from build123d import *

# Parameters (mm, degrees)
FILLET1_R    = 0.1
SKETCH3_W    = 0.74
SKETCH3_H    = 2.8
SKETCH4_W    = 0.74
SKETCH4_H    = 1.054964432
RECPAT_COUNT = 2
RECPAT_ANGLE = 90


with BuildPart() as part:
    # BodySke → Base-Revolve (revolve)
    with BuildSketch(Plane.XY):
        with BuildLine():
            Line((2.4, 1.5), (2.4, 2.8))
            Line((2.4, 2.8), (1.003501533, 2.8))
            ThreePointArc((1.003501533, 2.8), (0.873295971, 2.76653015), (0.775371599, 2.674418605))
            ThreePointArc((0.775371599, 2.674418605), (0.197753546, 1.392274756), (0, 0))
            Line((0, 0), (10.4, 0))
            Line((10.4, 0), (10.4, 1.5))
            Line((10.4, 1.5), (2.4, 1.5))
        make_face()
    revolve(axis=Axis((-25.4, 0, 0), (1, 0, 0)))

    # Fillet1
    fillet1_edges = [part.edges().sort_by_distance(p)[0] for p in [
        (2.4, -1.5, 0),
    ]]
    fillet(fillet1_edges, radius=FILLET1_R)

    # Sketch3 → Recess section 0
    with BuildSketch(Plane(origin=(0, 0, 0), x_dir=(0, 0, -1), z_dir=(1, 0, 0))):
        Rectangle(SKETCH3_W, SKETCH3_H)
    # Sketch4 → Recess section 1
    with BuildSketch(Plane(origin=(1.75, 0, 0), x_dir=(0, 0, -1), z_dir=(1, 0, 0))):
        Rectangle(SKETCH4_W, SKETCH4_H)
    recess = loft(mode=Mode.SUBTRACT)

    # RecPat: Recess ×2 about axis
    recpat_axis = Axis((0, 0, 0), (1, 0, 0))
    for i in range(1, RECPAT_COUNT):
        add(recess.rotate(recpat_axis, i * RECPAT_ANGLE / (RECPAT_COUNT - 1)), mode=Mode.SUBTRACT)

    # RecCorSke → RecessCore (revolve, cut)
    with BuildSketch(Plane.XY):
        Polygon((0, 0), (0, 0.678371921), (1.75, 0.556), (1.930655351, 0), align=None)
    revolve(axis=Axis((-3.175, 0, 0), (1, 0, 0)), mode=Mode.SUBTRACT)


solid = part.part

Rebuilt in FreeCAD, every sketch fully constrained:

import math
import FreeCAD as App
import Part
import Sketcher
from FreeCAD import Vector
Q = App.Units.Quantity


def edges_at(feature, points):
    """Names of the edges that pass closest to the given points."""
    edges = feature.Shape.Edges
    near = lambda p: min(range(len(edges)), key=lambda i: edges[i].distToShape(Part.Vertex(*p))[0])
    return sorted({f"Edge{near(p) + 1}" for p in points})

doc = App.newDocument("Part")
body = doc.addObject("PartDesign::Body", "Body")

# Sketch on XY plane
sketch1 = body.newObject("Sketcher::SketchObject", "Sketch")
sketch1.AttachmentSupport = (doc.getObject("XY_Plane"), [""])
sketch1.MapMode = "FlatFace"
sketch1.addGeometry(Part.LineSegment(Vector(2.4, 1.5, 0), Vector(2.4, 2.8, 0)), False)
sketch1.addGeometry(Part.LineSegment(Vector(2.4, 2.8, 0), Vector(1, 2.8, 0)), False)
sketch1.addGeometry(Part.ArcOfCircle(Part.Circle(Vector(1, 2.53, 0), Vector(0, 0, 1), 0.27), math.radians(90), math.radians(148)), False)
sketch1.addGeometry(Part.ArcOfCircle(Part.Circle(Vector(5, 0, 0), Vector(0, 0, 1), 5), math.radians(148), math.radians(180)), False)
sketch1.addGeometry(Part.LineSegment(Vector(0, 0, 0), Vector(10.4, 0, 0)), False)
sketch1.addGeometry(Part.LineSegment(Vector(10.4, 0, 0), Vector(10.4, 1.5, 0)), False)
sketch1.addGeometry(Part.LineSegment(Vector(10.4, 1.5, 0), Vector(2.4, 1.5, 0)), False)
sketch1.addConstraint(Sketcher.Constraint("Coincident", 0, 2, 1, 1))
sketch1.addConstraint(Sketcher.Constraint("Tangent", 1, 2, 2, 1))
sketch1.addConstraint(Sketcher.Constraint("Tangent", 2, 2, 3, 1))
sketch1.addConstraint(Sketcher.Constraint("Coincident", 3, 2, 4, 1))
sketch1.addConstraint(Sketcher.Constraint("Coincident", 4, 2, 5, 1))
sketch1.addConstraint(Sketcher.Constraint("Coincident", 5, 2, 6, 1))
sketch1.addConstraint(Sketcher.Constraint("Coincident", 6, 2, 0, 1))
sketch1.addConstraint(Sketcher.Constraint("Vertical", 0))
sketch1.addConstraint(Sketcher.Constraint("Horizontal", 1))
sketch1.addConstraint(Sketcher.Constraint("Horizontal", 4))
sketch1.addConstraint(Sketcher.Constraint("Vertical", 5))
sketch1.addConstraint(Sketcher.Constraint("Horizontal", 6))
sketch1.addConstraint(Sketcher.Constraint("Coincident", 3, 2, -1, 1))
sketch1.addConstraint(Sketcher.Constraint("PointOnObject", 3, 3, -1))
sketch1.addConstraint(Sketcher.Constraint("Radius", 3, 5.0))
sketch1.addConstraint(Sketcher.Constraint("DistanceX", 6, 2, 6, 1, 8.0))
sketch1.addConstraint(Sketcher.Constraint("Radius", 2, 0.27))
sketch1.addConstraint(Sketcher.Constraint("DistanceX", 4, 1, 4, 2, 10.4))
sketch1.addConstraint(Sketcher.Constraint("DistanceY", 0, 1, 0, 2, 1.3))
sketch1.addConstraint(Sketcher.Constraint("DistanceY", 5, 1, 5, 2, 1.5))
revolution = body.newObject("PartDesign::Revolution", "Revolution")
revolution.Profile = sketch1
revolution.ReferenceAxis = (sketch1, ["H_Axis"])
revolution.Angle = 360
doc.recompute()

fillet = body.newObject("PartDesign::Fillet", "Fillet")
fillet.Base = (revolution, edges_at(revolution, [(2.4, -1.5, 0)]))
fillet.Radius = 0.1

# Sketch on YZ plane
sketch2 = body.newObject("Sketcher::SketchObject", "Sketch001")
sketch2.AttachmentSupport = (doc.getObject("YZ_Plane"), [""])
sketch2.MapMode = "FlatFace"
sketch2.addGeometry(Part.LineSegment(Vector(1.4, 0.4, 0), Vector(-1.4, 0.4, 0)), False)
sketch2.addGeometry(Part.LineSegment(Vector(-1.4, 0.4, 0), Vector(-1.4, -0.4, 0)), False)
sketch2.addGeometry(Part.LineSegment(Vector(-1.4, -0.4, 0), Vector(1.4, -0.4, 0)), False)
sketch2.addGeometry(Part.LineSegment(Vector(1.4, -0.4, 0), Vector(1.4, 0.4, 0)), False)
sketch2.addConstraint(Sketcher.Constraint("Coincident", 0, 2, 1, 1))
sketch2.addConstraint(Sketcher.Constraint("Coincident", 1, 2, 2, 1))
sketch2.addConstraint(Sketcher.Constraint("Coincident", 2, 2, 3, 1))
sketch2.addConstraint(Sketcher.Constraint("Coincident", 3, 2, 0, 1))
sketch2.addConstraint(Sketcher.Constraint("Horizontal", 0))
sketch2.addConstraint(Sketcher.Constraint("Vertical", 1))
sketch2.addConstraint(Sketcher.Constraint("Horizontal", 2))
sketch2.addConstraint(Sketcher.Constraint("Vertical", 3))
sketch2.addConstraint(Sketcher.Constraint("Symmetric", 0, 2, 2, 2, -1, 1))
sketch2.addConstraint(Sketcher.Constraint("DistanceX", 0, 2, 0, 1, 2.8))
sketch2.addConstraint(Sketcher.Constraint("DistanceY", 1, 2, 1, 1, 0.74))

# Sketch on YZ plane
sketch3 = body.newObject("Sketcher::SketchObject", "Sketch002")
sketch3.AttachmentSupport = (doc.getObject("YZ_Plane"), [""])
sketch3.MapMode = "FlatFace"
sketch3.AttachmentOffset = App.Placement(Vector(0, 0, 1.75), App.Rotation())
sketch3.addGeometry(Part.LineSegment(Vector(0.5, 0.4, 0), Vector(-0.5, 0.4, 0)), False)
sketch3.addGeometry(Part.LineSegment(Vector(-0.5, 0.4, 0), Vector(-0.5, -0.4, 0)), False)
sketch3.addGeometry(Part.LineSegment(Vector(-0.5, -0.4, 0), Vector(0.5, -0.4, 0)), False)
sketch3.addGeometry(Part.LineSegment(Vector(0.5, -0.4, 0), Vector(0.5, 0.4, 0)), False)
sketch3.addConstraint(Sketcher.Constraint("Coincident", 0, 2, 1, 1))
sketch3.addConstraint(Sketcher.Constraint("Coincident", 1, 2, 2, 1))
sketch3.addConstraint(Sketcher.Constraint("Coincident", 2, 2, 3, 1))
sketch3.addConstraint(Sketcher.Constraint("Coincident", 3, 2, 0, 1))
sketch3.addConstraint(Sketcher.Constraint("Horizontal", 0))
sketch3.addConstraint(Sketcher.Constraint("Vertical", 1))
sketch3.addConstraint(Sketcher.Constraint("Horizontal", 2))
sketch3.addConstraint(Sketcher.Constraint("Vertical", 3))
sketch3.addConstraint(Sketcher.Constraint("Symmetric", 0, 2, 2, 2, -1, 1))
sketch3.addConstraint(Sketcher.Constraint("DistanceY", 1, 2, 1, 1, 0.74))
sketch3.addConstraint(Sketcher.Constraint("DistanceX", 0, 2, 0, 1, 1.054964))

subtractiveloft = body.newObject("PartDesign::SubtractiveLoft", "SubtractiveLoft")
subtractiveloft.Profile = sketch2
subtractiveloft.Sections = [sketch3]
doc.recompute()

polarpattern = body.newObject("PartDesign::PolarPattern", "PolarPattern")
polarpattern.Originals = [subtractiveloft]
polarpattern.Axis = (doc.getObject("X_Axis"), [""])
polarpattern.Angle = 90
polarpattern.Occurrences = 2
body.Tip = polarpattern

# Sketch on XY plane
sketch4 = body.newObject("Sketcher::SketchObject", "Sketch003")
sketch4.AttachmentSupport = (doc.getObject("XY_Plane"), [""])
sketch4.MapMode = "FlatFace"
sketch4.addGeometry(Part.LineSegment(Vector(0, 0.7, 0), Vector(0, 0, 0)), False)
sketch4.addGeometry(Part.LineSegment(Vector(0, 0, 0), Vector(1.9, 0, 0)), False)
sketch4.addGeometry(Part.LineSegment(Vector(1.9, 0, 0), Vector(1.8, 0.6, 0)), False)
sketch4.addGeometry(Part.LineSegment(Vector(1.8, 0.6, 0), Vector(0, 0.7, 0)), False)
sketch4.addConstraint(Sketcher.Constraint("Coincident", 0, 2, 1, 1))
sketch4.addConstraint(Sketcher.Constraint("Coincident", 1, 2, 2, 1))
sketch4.addConstraint(Sketcher.Constraint("Coincident", 2, 2, 3, 1))
sketch4.addConstraint(Sketcher.Constraint("Coincident", 3, 2, 0, 1))
sketch4.addConstraint(Sketcher.Constraint("Vertical", 0))
sketch4.addConstraint(Sketcher.Constraint("Horizontal", 1))
sketch4.addConstraint(Sketcher.Constraint("Coincident", 0, 2, -1, 1))
sketch4.addConstraint(Sketcher.Constraint("Angle", 2, Q("108 deg")))
sketch4.addConstraint(Sketcher.Constraint("Angle", 3, Q("176 deg")))
sketch4.addConstraint(Sketcher.Constraint("DistanceX", -1, 1, 2, 2, 1.75))
sketch4.addConstraint(Sketcher.Constraint("DistanceY", -1, 1, 2, 2, 0.556))
groove = body.newObject("PartDesign::Groove", "Groove")
groove.Profile = sketch4
groove.ReferenceAxis = (sketch4, ["H_Axis"])
groove.Angle = 360

doc.recompute()
